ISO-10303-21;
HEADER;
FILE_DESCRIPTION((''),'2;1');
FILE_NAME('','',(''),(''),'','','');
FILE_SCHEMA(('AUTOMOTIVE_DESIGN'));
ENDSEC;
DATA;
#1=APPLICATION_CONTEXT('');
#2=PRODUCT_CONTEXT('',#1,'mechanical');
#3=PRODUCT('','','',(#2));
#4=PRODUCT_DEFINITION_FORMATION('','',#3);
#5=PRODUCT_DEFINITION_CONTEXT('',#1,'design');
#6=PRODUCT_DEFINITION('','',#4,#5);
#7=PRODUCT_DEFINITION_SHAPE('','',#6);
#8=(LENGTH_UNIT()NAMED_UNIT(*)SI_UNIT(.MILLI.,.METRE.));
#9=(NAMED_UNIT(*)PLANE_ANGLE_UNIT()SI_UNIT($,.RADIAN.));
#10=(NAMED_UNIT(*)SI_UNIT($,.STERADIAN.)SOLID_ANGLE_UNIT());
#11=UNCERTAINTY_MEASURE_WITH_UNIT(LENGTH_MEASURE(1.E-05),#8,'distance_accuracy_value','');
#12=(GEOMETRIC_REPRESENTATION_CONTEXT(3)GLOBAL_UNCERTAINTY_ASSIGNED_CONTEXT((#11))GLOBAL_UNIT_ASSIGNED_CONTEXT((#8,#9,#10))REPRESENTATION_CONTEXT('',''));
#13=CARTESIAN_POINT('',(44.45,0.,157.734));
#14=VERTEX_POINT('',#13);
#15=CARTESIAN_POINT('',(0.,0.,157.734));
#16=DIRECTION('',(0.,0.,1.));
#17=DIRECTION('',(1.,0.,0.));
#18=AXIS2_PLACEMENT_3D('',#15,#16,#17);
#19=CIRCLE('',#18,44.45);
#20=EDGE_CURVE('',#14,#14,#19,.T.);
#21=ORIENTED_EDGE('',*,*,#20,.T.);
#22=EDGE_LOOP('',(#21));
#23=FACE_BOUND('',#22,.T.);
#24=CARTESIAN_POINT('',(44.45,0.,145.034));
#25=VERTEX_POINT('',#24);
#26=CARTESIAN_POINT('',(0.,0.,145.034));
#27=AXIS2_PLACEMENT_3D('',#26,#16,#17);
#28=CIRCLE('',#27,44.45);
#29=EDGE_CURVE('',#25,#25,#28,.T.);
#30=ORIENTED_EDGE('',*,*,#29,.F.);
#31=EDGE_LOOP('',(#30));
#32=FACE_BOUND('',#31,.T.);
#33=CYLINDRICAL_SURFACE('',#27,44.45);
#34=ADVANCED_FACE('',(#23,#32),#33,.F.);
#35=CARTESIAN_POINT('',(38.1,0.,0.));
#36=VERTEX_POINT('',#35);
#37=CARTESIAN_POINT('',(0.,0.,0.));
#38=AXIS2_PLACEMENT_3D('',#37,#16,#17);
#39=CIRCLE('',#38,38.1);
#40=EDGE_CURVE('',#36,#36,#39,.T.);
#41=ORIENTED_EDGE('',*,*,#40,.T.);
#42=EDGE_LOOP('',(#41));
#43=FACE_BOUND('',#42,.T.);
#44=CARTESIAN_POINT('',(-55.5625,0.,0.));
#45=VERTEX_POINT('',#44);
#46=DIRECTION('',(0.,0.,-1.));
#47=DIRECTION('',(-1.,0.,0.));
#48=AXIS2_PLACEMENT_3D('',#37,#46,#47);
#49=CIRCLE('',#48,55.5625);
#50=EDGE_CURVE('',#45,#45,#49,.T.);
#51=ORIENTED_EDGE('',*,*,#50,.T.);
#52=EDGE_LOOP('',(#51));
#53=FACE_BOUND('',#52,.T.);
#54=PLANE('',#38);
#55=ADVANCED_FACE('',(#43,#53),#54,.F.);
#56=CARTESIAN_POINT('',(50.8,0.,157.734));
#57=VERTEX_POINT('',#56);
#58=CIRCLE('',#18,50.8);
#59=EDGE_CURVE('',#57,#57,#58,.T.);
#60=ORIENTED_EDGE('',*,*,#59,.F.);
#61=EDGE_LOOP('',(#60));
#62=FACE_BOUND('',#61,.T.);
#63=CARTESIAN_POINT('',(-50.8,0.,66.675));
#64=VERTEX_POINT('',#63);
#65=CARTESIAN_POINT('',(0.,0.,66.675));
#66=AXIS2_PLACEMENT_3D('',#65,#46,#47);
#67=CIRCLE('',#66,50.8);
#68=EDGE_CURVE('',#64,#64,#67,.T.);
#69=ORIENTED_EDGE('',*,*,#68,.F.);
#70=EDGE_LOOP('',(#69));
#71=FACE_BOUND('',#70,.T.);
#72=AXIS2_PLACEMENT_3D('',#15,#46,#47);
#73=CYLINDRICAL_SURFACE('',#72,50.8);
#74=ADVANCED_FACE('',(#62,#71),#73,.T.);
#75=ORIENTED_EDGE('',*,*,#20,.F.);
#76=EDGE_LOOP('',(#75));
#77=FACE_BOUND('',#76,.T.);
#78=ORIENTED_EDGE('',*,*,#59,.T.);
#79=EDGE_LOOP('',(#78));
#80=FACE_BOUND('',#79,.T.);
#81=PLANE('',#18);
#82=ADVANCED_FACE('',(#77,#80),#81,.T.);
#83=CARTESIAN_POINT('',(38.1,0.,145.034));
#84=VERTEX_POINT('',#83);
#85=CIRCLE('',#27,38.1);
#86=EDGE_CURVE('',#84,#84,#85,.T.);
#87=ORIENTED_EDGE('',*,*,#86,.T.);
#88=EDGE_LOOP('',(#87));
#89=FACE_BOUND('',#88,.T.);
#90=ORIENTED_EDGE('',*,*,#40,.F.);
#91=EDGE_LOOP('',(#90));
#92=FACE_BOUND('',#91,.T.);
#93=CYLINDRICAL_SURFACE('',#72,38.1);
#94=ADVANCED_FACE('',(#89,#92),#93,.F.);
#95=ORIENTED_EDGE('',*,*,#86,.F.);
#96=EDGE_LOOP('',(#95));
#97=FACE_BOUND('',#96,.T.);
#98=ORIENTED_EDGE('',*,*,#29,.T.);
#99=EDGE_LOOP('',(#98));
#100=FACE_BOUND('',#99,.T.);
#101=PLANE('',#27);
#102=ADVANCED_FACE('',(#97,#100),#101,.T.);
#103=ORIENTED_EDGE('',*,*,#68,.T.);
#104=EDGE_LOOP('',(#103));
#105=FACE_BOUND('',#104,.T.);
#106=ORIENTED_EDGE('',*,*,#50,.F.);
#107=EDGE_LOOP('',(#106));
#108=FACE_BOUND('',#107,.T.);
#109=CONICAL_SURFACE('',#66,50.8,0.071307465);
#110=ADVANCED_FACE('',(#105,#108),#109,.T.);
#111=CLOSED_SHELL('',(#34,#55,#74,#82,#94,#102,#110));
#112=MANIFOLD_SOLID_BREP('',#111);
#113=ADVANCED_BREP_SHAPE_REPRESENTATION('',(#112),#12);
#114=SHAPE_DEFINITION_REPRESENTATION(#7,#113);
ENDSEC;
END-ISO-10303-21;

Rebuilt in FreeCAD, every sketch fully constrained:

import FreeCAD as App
import Part
import Sketcher
Q = App.Units.Quantity


def add_polygon(sketch, points):
    """Adds a closed chain of lines whose ends are joined by coincident constraints."""
    first, n = sketch.GeometryCount, len(points)
    for a, b in zip(points, points[1:] + points[:1]):
        sketch.addGeometry(Part.LineSegment(App.Vector(*a, 0), App.Vector(*b, 0)), False)
    for i in range(n):
        sketch.addConstraint(Sketcher.Constraint("Coincident", first + i, 2, first + (i + 1) % n, 1))

doc = App.newDocument("Part")
params = doc.addObject("Spreadsheet::Sheet", "Params")
for row, (alias, value) in enumerate([
    ("sketch1_diameter", "4 in"),
    ("sketch1_diameter2", "3 in"),
    ("pad1_length", "6.21 in"),
    ("sketch2_diameter", "3 in"),
    ("sketch2_diameter2", "3.5 in"),
    ("pocket1_length", "0.5 in"),
    ("sketch3_width", "0.1875 in"),
    ("sketch3_height", "2.625 in"),
    ("revolution_angle", "360 deg"),
], start=1):
    params.set(f"A{row}", alias)
    params.set(f"B{row}", "=" + value)
    params.setAlias(f"B{row}", alias)

body = doc.addObject("PartDesign::Body", "Body")

# Sketch on XY plane
sketch1 = body.newObject("Sketcher::SketchObject", "Sketch")
sketch1.AttachmentSupport = (doc.getObject("XY_Plane"), [""])
sketch1.MapMode = "FlatFace"
sketch1.addGeometry([
    Part.Circle(App.Vector(0, 0, 0), App.Vector(0, 0, 1), 51),
    Part.Circle(App.Vector(0, 0, 0), App.Vector(0, 0, 1), 38),
], False)
sketch1.addConstraint([
    Sketcher.Constraint("Coincident", 0, 3, -1, 1),
    Sketcher.Constraint("Coincident", 1, 3, -1, 1),
    Sketcher.Constraint("Diameter", 0, Q("4 in")),
    Sketcher.Constraint("Diameter", 1, Q("3 in")),
])
sketch1.setExpression("Constraints[2]", "Params.sketch1_diameter")
sketch1.setExpression("Constraints[3]", "Params.sketch1_diameter2")
pad1 = body.newObject("PartDesign::Pad", "Pad")
pad1.Profile = sketch1
pad1.setExpression("Length", "Params.pad1_length")

# Sketch on XY plane
sketch2 = body.newObject("Sketcher::SketchObject", "Sketch001")
sketch2.AttachmentSupport = (doc.getObject("XY_Plane"), [""])
sketch2.MapMode = "FlatFace"
sketch2.AttachmentOffset = App.Placement(App.Vector(0, 0, 6.21 * 25.4), App.Rotation())
sketch2.addGeometry([
    Part.Circle(App.Vector(0, 0, 0), App.Vector(0, 0, 1), 44),
    Part.Circle(App.Vector(0, 0, 0), App.Vector(0, 0, 1), 38),
], False)
sketch2.addConstraint([
    Sketcher.Constraint("Coincident", 0, 3, -1, 1),
    Sketcher.Constraint("Coincident", 1, 3, -1, 1),
    Sketcher.Constraint("Diameter", 1, Q("3 in")),
    Sketcher.Constraint("Diameter", 0, Q("3.5 in")),
])
sketch2.setExpression("Constraints[2]", "Params.sketch2_diameter")
sketch2.setExpression("Constraints[3]", "Params.sketch2_diameter2")
pocket1 = body.newObject("PartDesign::Pocket", "Pocket")
pocket1.Profile = sketch2
pocket1.setExpression("Length", "Params.pocket1_length")

# Sketch on XZ plane
sketch3 = body.newObject("Sketcher::SketchObject", "Sketch002")
sketch3.AttachmentSupport = (doc.getObject("XZ_Plane"), [""])
sketch3.MapMode = "FlatFace"
add_polygon(sketch3, [(50.8, 66.7), (55.6, 0), (50.8, 0)])  # lines 0-2
sketch3.addConstraint([
    Sketcher.Constraint("Horizontal", 1),
    Sketcher.Constraint("Vertical", 2),
    Sketcher.Constraint("PointOnObject", 0, 2, -1),
    Sketcher.Constraint("DistanceX", -1, 1, 1, 2, Q("2 in")),
    Sketcher.Constraint("DistanceX", 1, 2, 1, 1, Q("0.1875 in")),
    Sketcher.Constraint("DistanceY", 2, 1, 2, 2, Q("2.625 in")),
])
sketch3.setExpression("Constraints[7]", "Params.sketch3_width")
sketch3.setExpression("Constraints[8]", "Params.sketch3_height")
revolution = body.newObject("PartDesign::Revolution", "Revolution")
revolution.Profile = sketch3
revolution.ReferenceAxis = (sketch3, ["V_Axis"])
revolution.setExpression("Angle", "Params.revolution_angle")

doc.recompute()
